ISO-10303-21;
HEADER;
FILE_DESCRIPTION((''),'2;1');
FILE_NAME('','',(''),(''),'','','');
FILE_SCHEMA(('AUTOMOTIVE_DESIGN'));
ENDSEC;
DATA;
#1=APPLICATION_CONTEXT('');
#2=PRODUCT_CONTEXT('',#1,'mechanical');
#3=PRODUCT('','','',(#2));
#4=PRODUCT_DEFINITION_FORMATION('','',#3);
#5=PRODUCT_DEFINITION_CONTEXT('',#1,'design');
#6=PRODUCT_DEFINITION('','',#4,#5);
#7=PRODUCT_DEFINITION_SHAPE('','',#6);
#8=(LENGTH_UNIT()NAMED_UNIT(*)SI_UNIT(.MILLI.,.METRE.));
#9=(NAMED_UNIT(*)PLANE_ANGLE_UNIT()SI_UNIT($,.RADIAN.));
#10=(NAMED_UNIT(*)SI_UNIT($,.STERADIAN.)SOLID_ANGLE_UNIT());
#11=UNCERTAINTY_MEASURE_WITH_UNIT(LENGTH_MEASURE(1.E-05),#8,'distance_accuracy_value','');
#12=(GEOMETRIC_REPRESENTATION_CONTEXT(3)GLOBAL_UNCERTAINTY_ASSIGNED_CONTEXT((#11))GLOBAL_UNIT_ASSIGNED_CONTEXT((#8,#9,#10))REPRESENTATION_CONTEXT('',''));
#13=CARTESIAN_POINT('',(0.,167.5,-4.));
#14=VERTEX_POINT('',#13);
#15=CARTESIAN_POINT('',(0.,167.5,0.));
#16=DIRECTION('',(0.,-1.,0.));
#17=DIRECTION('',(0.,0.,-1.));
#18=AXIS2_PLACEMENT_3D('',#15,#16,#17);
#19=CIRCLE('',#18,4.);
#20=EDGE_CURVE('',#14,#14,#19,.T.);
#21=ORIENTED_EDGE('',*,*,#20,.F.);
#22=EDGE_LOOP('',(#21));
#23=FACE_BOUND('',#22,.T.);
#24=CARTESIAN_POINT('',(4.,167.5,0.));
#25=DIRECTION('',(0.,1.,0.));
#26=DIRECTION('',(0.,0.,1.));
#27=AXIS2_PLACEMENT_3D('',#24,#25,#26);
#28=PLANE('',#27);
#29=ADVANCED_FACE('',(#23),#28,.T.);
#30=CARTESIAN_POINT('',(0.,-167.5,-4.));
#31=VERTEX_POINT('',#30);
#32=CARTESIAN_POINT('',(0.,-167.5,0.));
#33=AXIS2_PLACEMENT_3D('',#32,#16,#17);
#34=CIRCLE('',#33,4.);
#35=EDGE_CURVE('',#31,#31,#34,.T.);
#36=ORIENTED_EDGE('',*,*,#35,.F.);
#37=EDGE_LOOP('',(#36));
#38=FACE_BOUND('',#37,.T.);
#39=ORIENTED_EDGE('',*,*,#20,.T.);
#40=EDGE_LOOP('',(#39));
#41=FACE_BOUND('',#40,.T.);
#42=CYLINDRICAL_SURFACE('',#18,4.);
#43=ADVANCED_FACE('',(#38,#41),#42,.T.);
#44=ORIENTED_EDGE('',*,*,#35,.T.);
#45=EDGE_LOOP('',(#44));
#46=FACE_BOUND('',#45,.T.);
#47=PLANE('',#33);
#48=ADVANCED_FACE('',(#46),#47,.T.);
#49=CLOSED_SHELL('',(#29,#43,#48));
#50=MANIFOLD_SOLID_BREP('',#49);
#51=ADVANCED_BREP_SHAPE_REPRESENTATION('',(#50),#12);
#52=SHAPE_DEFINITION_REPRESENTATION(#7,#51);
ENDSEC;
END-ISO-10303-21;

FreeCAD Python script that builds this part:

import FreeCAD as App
import Part
import Sketcher

doc = App.newDocument("Part")
body = doc.addObject("PartDesign::Body", "Body")

# Sketch on XY plane
sketch1 = doc.addObject("Sketcher::SketchObject", "Sketch")
body.addObject(sketch1)
sketch1.AttachmentSupport = (doc.XY_Plane, [""])
sketch1.MapMode = "FlatFace"
sketch1.addGeometry([
    Part.LineSegment(App.Vector(0, 167.5, 0), App.Vector(0, -167.5, 0)),
    Part.LineSegment(App.Vector(0, -167.5, 0), App.Vector(4, -167.5, 0)),
    Part.LineSegment(App.Vector(4, -167.5, 0), App.Vector(4, 167.5, 0)),
    Part.LineSegment(App.Vector(4, 167.5, 0), App.Vector(0, 167.5, 0)),
], False)
sketch1.addConstraint([
    Sketcher.Constraint("Coincident", 0, 2, 1, 1),
    Sketcher.Constraint("Coincident", 1, 2, 2, 1),
    Sketcher.Constraint("Coincident", 2, 2, 3, 1),
    Sketcher.Constraint("Coincident", 3, 2, 0, 1),
    Sketcher.Constraint("Vertical", 0),
    Sketcher.Constraint("Horizontal", 1),
    Sketcher.Constraint("Vertical", 2),
    Sketcher.Constraint("Horizontal", 3),
    Sketcher.Constraint("Symmetric", 0, 2, 3, 2, -1, 1),
    Sketcher.Constraint("DistanceX", 1, 1, 1, 2, 4.0),
    Sketcher.Constraint("DistanceY", 0, 2, 0, 1, 335.0),
])
revolution = doc.addObject("PartDesign::Revolution", "Revolution")
body.addObject(revolution)
revolution.Profile = sketch1
revolution.ReferenceAxis = (sketch1, ["V_Axis"])
revolution.Angle = 360

doc.recompute()
